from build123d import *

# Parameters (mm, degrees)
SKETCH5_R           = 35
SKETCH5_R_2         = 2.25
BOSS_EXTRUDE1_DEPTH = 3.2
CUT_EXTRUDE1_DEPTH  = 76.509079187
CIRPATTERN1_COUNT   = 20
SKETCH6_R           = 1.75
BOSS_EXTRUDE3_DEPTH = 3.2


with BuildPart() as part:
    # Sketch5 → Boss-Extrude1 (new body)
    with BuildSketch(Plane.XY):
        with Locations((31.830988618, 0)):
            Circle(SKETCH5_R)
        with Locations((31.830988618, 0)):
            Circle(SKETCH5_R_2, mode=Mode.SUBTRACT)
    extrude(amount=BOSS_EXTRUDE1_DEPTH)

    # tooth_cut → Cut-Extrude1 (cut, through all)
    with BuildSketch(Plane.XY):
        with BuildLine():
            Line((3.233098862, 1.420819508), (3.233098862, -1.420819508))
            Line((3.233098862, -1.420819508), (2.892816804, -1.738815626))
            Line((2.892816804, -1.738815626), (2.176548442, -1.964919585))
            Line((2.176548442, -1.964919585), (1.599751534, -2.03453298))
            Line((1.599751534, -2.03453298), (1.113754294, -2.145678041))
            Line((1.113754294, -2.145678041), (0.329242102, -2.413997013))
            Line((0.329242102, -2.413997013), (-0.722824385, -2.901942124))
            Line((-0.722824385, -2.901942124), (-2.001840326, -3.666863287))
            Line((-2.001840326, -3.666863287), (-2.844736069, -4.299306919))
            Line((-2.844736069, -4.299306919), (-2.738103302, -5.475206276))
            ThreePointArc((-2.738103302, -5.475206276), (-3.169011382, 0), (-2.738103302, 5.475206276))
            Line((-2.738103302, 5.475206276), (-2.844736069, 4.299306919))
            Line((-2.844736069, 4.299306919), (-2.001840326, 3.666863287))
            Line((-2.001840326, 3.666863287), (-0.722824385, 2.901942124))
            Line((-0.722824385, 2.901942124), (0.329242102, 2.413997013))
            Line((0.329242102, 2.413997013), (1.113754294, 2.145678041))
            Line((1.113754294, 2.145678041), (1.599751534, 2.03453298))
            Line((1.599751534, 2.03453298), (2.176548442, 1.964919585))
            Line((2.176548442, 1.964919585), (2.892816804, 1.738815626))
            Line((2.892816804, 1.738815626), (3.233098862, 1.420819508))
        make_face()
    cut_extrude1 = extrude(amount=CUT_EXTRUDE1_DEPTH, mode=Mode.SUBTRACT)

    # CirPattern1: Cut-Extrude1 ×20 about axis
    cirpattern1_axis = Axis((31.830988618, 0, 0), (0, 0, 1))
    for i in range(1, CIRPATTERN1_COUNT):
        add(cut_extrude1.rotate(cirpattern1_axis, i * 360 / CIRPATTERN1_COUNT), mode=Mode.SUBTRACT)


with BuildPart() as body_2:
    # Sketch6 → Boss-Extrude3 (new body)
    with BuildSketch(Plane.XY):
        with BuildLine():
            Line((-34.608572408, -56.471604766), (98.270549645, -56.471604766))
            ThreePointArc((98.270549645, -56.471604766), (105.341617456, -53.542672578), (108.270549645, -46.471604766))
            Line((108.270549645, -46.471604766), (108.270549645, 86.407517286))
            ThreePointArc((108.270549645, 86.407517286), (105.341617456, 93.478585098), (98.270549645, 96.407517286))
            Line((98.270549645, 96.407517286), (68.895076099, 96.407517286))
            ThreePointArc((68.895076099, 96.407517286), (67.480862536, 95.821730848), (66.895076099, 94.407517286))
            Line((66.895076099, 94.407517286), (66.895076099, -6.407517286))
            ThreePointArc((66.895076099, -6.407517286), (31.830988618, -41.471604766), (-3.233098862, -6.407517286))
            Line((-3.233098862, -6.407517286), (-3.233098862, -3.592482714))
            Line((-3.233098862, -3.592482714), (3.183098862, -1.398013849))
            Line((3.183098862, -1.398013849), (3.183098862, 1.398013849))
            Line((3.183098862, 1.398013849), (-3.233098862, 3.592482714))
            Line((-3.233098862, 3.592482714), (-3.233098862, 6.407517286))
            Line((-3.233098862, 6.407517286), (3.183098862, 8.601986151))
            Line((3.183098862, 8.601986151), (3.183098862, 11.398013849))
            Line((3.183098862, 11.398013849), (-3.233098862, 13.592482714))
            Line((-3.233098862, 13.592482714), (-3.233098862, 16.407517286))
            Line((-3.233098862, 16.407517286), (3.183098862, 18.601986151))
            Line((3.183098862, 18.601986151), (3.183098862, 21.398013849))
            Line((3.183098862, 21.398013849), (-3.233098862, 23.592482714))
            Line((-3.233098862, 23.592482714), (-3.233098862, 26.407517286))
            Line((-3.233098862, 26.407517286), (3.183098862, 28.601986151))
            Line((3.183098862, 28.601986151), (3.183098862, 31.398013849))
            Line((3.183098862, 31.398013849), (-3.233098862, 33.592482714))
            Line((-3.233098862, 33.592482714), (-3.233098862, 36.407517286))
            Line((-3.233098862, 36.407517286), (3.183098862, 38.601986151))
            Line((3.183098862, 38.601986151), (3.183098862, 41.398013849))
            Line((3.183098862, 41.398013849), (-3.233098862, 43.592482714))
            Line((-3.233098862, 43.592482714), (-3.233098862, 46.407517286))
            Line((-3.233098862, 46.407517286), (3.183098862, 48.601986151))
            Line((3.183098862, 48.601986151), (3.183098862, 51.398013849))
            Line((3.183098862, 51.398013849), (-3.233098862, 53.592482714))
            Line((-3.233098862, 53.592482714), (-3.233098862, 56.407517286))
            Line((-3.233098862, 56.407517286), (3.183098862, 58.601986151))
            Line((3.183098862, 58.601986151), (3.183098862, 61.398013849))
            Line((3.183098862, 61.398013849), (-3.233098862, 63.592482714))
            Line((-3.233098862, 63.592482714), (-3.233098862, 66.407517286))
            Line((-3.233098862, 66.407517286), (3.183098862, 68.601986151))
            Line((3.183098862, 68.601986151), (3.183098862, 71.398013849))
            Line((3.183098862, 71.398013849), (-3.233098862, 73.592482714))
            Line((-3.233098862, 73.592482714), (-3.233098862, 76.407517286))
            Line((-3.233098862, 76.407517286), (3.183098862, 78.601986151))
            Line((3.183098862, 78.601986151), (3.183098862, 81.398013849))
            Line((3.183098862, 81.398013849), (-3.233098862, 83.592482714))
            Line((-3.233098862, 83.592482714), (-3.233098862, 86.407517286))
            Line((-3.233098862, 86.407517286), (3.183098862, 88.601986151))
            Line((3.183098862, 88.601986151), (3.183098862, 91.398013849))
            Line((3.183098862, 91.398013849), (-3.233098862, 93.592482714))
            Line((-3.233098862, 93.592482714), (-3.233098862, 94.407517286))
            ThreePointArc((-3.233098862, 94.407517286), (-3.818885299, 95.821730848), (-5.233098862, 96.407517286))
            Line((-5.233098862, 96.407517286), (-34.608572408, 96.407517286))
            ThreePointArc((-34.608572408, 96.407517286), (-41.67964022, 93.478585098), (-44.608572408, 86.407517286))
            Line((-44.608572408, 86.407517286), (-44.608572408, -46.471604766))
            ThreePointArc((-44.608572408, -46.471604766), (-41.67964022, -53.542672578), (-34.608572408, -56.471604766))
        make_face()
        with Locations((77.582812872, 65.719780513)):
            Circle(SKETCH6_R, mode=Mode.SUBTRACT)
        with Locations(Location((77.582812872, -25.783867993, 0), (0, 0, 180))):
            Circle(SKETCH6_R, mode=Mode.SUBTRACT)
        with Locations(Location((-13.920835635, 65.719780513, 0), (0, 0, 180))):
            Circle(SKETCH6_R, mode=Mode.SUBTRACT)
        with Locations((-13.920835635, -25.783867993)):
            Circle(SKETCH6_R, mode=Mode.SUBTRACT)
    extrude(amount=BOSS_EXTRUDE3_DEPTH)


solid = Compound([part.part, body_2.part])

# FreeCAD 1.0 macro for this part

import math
import FreeCAD as App
import Part
import Sketcher

V = App.Vector
Q = App.Units.Quantity

doc = App.newDocument("Part")
params = doc.addObject("Spreadsheet::Sheet", "Params")
for row, (alias, value) in enumerate([
    ("sketch1_diameter", "70 mm"),
    ("sketch1_diameter2", "4.5 mm"),
    ("pad1_length", "3.2 mm"),
    ("sketch2_radius", "35 mm"),
    ("sketch3_radius", "10 mm"),
    ("sketch3_radius2", "2 mm"),
    ("sketch3_diameter", "3.5 mm"),
    ("pad2_length", "3.2 mm"),
], start=1):
    params.set(f"A{row}", alias)
    params.set(f"B{row}", "=" + value)
    params.setAlias(f"B{row}", alias)

body = doc.addObject("PartDesign::Body", "Body")

sketch1 = body.newObject("Sketcher::SketchObject", "Sketch")
sketch1.AttachmentSupport = (doc.getObject("XY_Plane"), [""])
sketch1.MapMode = "FlatFace"
sketch1.addGeometry(Part.Circle(V(31.8, 0, 0), V(0, 0, 1), 35), False)
sketch1.addGeometry(Part.Circle(V(31.8, 0, 0), V(0, 0, 1), 2.2), False)
sketch1.addConstraint(Sketcher.Constraint("Coincident", 1, 3, 0, 3))
sketch1.addConstraint(Sketcher.Constraint("PointOnObject", 0, 3, -1))
sketch1.addConstraint(Sketcher.Constraint("Diameter", 0, Q("70 mm")))
sketch1.addConstraint(Sketcher.Constraint("Diameter", 1, Q("4.5 mm")))
sketch1.addConstraint(Sketcher.Constraint("DistanceX", -1, 1, 0, 3, Q("31.830989 mm")))
sketch1.setExpression("Constraints[2]", "Params.sketch1_diameter")
sketch1.setExpression("Constraints[3]", "Params.sketch1_diameter2")
pad1 = body.newObject("PartDesign::Pad", "Pad")
pad1.Profile = sketch1
pad1.setExpression("Length", "Params.pad1_length")

sketch2 = body.newObject("Sketcher::SketchObject", "Sketch001")
sketch2.AttachmentSupport = (doc.getObject("XY_Plane"), [""])
sketch2.MapMode = "FlatFace"
sketch2.addGeometry(Part.LineSegment(V(3.23, -1.42, 0), V(3.23, 1.42, 0)), False)
sketch2.addGeometry(Part.LineSegment(V(3.23, 1.42, 0), V(2.89, 1.74, 0)), False)
sketch2.addGeometry(Part.LineSegment(V(2.89, 1.74, 0), V(2.18, 1.96, 0)), False)
sketch2.addGeometry(Part.LineSegment(V(2.18, 1.96, 0), V(1.6, 2.03, 0)), False)
sketch2.addGeometry(Part.LineSegment(V(1.6, 2.03, 0), V(1.11, 2.15, 0)), False)
sketch2.addGeometry(Part.LineSegment(V(1.11, 2.15, 0), V(0.33, 2.41, 0)), False)
sketch2.addGeometry(Part.LineSegment(V(0.33, 2.41, 0), V(-0.72, 2.9, 0)), False)
sketch2.addGeometry(Part.LineSegment(V(-0.72, 2.9, 0), V(-2, 3.67, 0)), False)
sketch2.addGeometry(Part.LineSegment(V(-2, 3.67, 0), V(-2.84, 4.3, 0)), False)
sketch2.addGeometry(Part.LineSegment(V(-2.84, 4.3, 0), V(-2.74, 5.48, 0)), False)
sketch2.addGeometry(Part.ArcOfCircle(Part.Circle(V(31.83, 0, 0), V(0, 0, 1), 35), math.radians(171), math.radians(189)), False)
sketch2.addGeometry(Part.LineSegment(V(-2.74, -5.48, 0), V(-2.84, -4.3, 0)), False)
sketch2.addGeometry(Part.LineSegment(V(-2.84, -4.3, 0), V(-2, -3.67, 0)), False)
sketch2.addGeometry(Part.LineSegment(V(-2, -3.67, 0), V(-0.72, -2.9, 0)), False)
sketch2.addGeometry(Part.LineSegment(V(-0.72, -2.9, 0), V(0.33, -2.41, 0)), False)
sketch2.addGeometry(Part.LineSegment(V(0.33, -2.41, 0), V(1.11, -2.15, 0)), False)
sketch2.addGeometry(Part.LineSegment(V(1.11, -2.15, 0), V(1.6, -2.03, 0)), False)
sketch2.addGeometry(Part.LineSegment(V(1.6, -2.03, 0), V(2.18, -1.96, 0)), False)
sketch2.addGeometry(Part.LineSegment(V(2.18, -1.96, 0), V(2.89, -1.74, 0)), False)
sketch2.addGeometry(Part.LineSegment(V(2.89, -1.74, 0), V(3.23, -1.42, 0)), False)
sketch2.addConstraint(Sketcher.Constraint("Coincident", 0, 2, 1, 1))
sketch2.addConstraint(Sketcher.Constraint("Coincident", 1, 2, 2, 1))
sketch2.addConstraint(Sketcher.Constraint("Coincident", 2, 2, 3, 1))
sketch2.addConstraint(Sketcher.Constraint("Coincident", 3, 2, 4, 1))
sketch2.addConstraint(Sketcher.Constraint("Coincident", 4, 2, 5, 1))
sketch2.addConstraint(Sketcher.Constraint("Coincident", 5, 2, 6, 1))
sketch2.addConstraint(Sketcher.Constraint("Coincident", 6, 2, 7, 1))
sketch2.addConstraint(Sketcher.Constraint("Coincident", 7, 2, 8, 1))
sketch2.addConstraint(Sketcher.Constraint("Coincident", 8, 2, 9, 1))
sketch2.addConstraint(Sketcher.Constraint("Coincident", 9, 2, 10, 1))
sketch2.addConstraint(Sketcher.Constraint("Coincident", 10, 2, 11, 1))
sketch2.addConstraint(Sketcher.Constraint("Coincident", 11, 2, 12, 1))
sketch2.addConstraint(Sketcher.Constraint("Coincident", 12, 2, 13, 1))
sketch2.addConstraint(Sketcher.Constraint("Coincident", 13, 2, 14, 1))
sketch2.addConstraint(Sketcher.Constraint("Coincident", 14, 2, 15, 1))
sketch2.addConstraint(Sketcher.Constraint("Coincident", 15, 2, 16, 1))
sketch2.addConstraint(Sketcher.Constraint("Coincident", 16, 2, 17, 1))
sketch2.addConstraint(Sketcher.Constraint("Coincident", 17, 2, 18, 1))
sketch2.addConstraint(Sketcher.Constraint("Coincident", 18, 2, 19, 1))
sketch2.addConstraint(Sketcher.Constraint("Coincident", 19, 2, 0, 1))
sketch2.addConstraint(Sketcher.Constraint("Vertical", 0))
sketch2.addConstraint(Sketcher.Constraint("Symmetric", 9, 2, 10, 2, -1))
sketch2.addConstraint(Sketcher.Constraint("Symmetric", 8, 2, 11, 2, -1))
sketch2.addConstraint(Sketcher.Constraint("Symmetric", 7, 2, 12, 2, -1))
sketch2.addConstraint(Sketcher.Constraint("Symmetric", 6, 2, 13, 2, -1))
sketch2.addConstraint(Sketcher.Constraint("Symmetric", 5, 2, 14, 2, -1))
sketch2.addConstraint(Sketcher.Constraint("Symmetric", 4, 2, 15, 2, -1))
sketch2.addConstraint(Sketcher.Constraint("Symmetric", 3, 2, 16, 2, -1))
sketch2.addConstraint(Sketcher.Constraint("Symmetric", 2, 2, 17, 2, -1))
sketch2.addConstraint(Sketcher.Constraint("Symmetric", 1, 2, 18, 2, -1))
sketch2.addConstraint(Sketcher.Constraint("Equal", 1, 19))
sketch2.addConstraint(Sketcher.Constraint("Radius", 10, Q("35 mm")))
sketch2.addConstraint(Sketcher.Constraint("DistanceY", 0, 1, 0, 2, Q("2.841639 mm")))
sketch2.addConstraint(Sketcher.Constraint("DistanceX", -1, 1, 0, 2, Q("3.233099 mm")))
sketch2.addConstraint(Sketcher.Constraint("DistanceY", 0, 2, 2, 2, Q("0.5441 mm")))
sketch2.addConstraint(Sketcher.Constraint("DistanceY", 8, 2, 9, 2, Q("1.175899 mm")))
sketch2.addConstraint(Sketcher.Constraint("Distance", 1, Q("0.46574 mm")))
sketch2.addConstraint(Sketcher.Constraint("Distance", 2, Q("0.751108 mm")))
sketch2.addConstraint(Sketcher.Constraint("Distance", 5, Q("0.829129 mm")))
sketch2.addConstraint(Sketcher.Constraint("DistanceX", -1, 1, 10, 3, Q("31.830989 mm")))
sketch2.addConstraint(Sketcher.Constraint("DistanceX", -1, 1, 2, 2, Q("2.176548 mm")))
sketch2.addConstraint(Sketcher.Constraint("DistanceX", -1, 1, 3, 2, Q("1.599752 mm")))
sketch2.addConstraint(Sketcher.Constraint("DistanceY", -1, 1, 4, 2, Q("2.145678 mm")))
sketch2.addConstraint(Sketcher.Constraint("DistanceX", 7, 2, -1, 1, Q("2.00184 mm")))
sketch2.addConstraint(Sketcher.Constraint("DistanceY", 4, 2, 5, 2, Q("0.268319 mm")))
sketch2.addConstraint(Sketcher.Constraint("DistanceX", 5, 2, 3, 2, Q("1.270509 mm")))
sketch2.addConstraint(Sketcher.Constraint("DistanceX", 6, 2, 4, 2, Q("1.836579 mm")))
sketch2.addConstraint(Sketcher.Constraint("DistanceY", 3, 2, 6, 2, Q("0.867409 mm")))
sketch2.addConstraint(Sketcher.Constraint("DistanceY", 6, 2, 7, 2, Q("0.764921 mm")))
sketch2.addConstraint(Sketcher.Constraint("DistanceX", 8, 2, 6, 2, Q("2.121912 mm")))
sketch2.addConstraint(Sketcher.Constraint("DistanceY", 5, 2, 8, 2, Q("1.88531 mm")))
sketch2.addConstraint(Sketcher.Constraint("DistanceY", 10, 2, 6, 2, Q("8.377148 mm")))
sketch2.setExpression("Constraints[31]", "Params.sketch2_radius")
pocket1 = body.newObject("PartDesign::Pocket", "Pocket")
pocket1.Profile = sketch2
pocket1.Type = "ThroughAll"
pocket1.Reversed = True
doc.recompute()

datumline = body.newObject("PartDesign::Line", "DatumLine")
datumline.Placement = App.Placement(V(31.830989, 0, 0), App.Rotation(V(0, 0, 1), V(0, 0, 1)))
polarpattern = body.newObject("PartDesign::PolarPattern", "PolarPattern")
polarpattern.Originals = [pocket1]
polarpattern.Axis = (datumline, [""])
polarpattern.Angle = 360
polarpattern.Occurrences = 20
body.Tip = polarpattern
body2 = doc.addObject("PartDesign::Body", "Body001")

sketch3 = body2.newObject("Sketcher::SketchObject", "Sketch002")
sketch3.AttachmentSupport = (doc.getObject("XY_Plane001"), [""])
sketch3.MapMode = "FlatFace"
sketch3.addGeometry(Part.LineSegment(V(-34.6, -56.5, 0), V(98.3, -56.5, 0)), False)
sketch3.addGeometry(Part.ArcOfCircle(Part.Circle(V(98.3, -46.5, 0), V(0, 0, 1), 10), math.radians(-90), math.radians(0)), False)
sketch3.addGeometry(Part.LineSegment(V(108.3, -46.5, 0), V(108.3, 86.4, 0)), False)
sketch3.addGeometry(Part.ArcOfCircle(Part.Circle(V(98.3, 86.4, 0), V(0, 0, 1), 10), math.radians(0), math.radians(90)), False)
sketch3.addGeometry(Part.LineSegment(V(98.3, 96.4, 0), V(68.9, 96.4, 0)), False)
sketch3.addGeometry(Part.ArcOfCircle(Part.Circle(V(68.9, 94.4, 0), V(0, 0, 1), 2), math.radians(90), math.radians(180)), False)
sketch3.addGeometry(Part.LineSegment(V(66.9, 94.4, 0), V(66.9, -6.4, 0)), False)
sketch3.addGeometry(Part.ArcOfCircle(Part.Circle(V(31.8, -6.4, 0), V(0, 0, 1), 35.1), math.radians(180), math.radians(360)), False)
sketch3.addGeometry(Part.LineSegment(V(-3.2, -6.4, 0), V(-3.2, -3.6, 0)), False)
sketch3.addGeometry(Part.LineSegment(V(-3.2, -3.6, 0), V(3.2, -1.4, 0)), False)
sketch3.addGeometry(Part.LineSegment(V(3.2, -1.4, 0), V(3.2, 1.4, 0)), False)
sketch3.addGeometry(Part.LineSegment(V(3.2, 1.4, 0), V(-3.2, 3.6, 0)), False)
sketch3.addGeometry(Part.LineSegment(V(-3.2, 3.6, 0), V(-3.2, 6.4, 0)), False)
sketch3.addGeometry(Part.LineSegment(V(-3.2, 6.4, 0), V(3.2, 8.6, 0)), False)
sketch3.addGeometry(Part.LineSegment(V(3.2, 8.6, 0), V(3.2, 11.4, 0)), False)
sketch3.addGeometry(Part.LineSegment(V(3.2, 11.4, 0), V(-3.2, 13.6, 0)), False)
sketch3.addGeometry(Part.LineSegment(V(-3.2, 13.6, 0), V(-3.2, 16.4, 0)), False)
sketch3.addGeometry(Part.LineSegment(V(-3.2, 16.4, 0), V(3.2, 18.6, 0)), False)
sketch3.addGeometry(Part.LineSegment(V(3.2, 18.6, 0), V(3.2, 21.4, 0)), False)
sketch3.addGeometry(Part.LineSegment(V(3.2, 21.4, 0), V(-3.2, 23.6, 0)), False)
sketch3.addGeometry(Part.LineSegment(V(-3.2, 23.6, 0), V(-3.2, 26.4, 0)), False)
sketch3.addGeometry(Part.LineSegment(V(-3.2, 26.4, 0), V(3.2, 28.6, 0)), False)
sketch3.addGeometry(Part.LineSegment(V(3.2, 28.6, 0), V(3.2, 31.4, 0)), False)
sketch3.addGeometry(Part.LineSegment(V(3.2, 31.4, 0), V(-3.2, 33.6, 0)), False)
sketch3.addGeometry(Part.LineSegment(V(-3.2, 33.6, 0), V(-3.2, 36.4, 0)), False)
sketch3.addGeometry(Part.LineSegment(V(-3.2, 36.4, 0), V(3.2, 38.6, 0)), False)
sketch3.addGeometry(Part.LineSegment(V(3.2, 38.6, 0), V(3.2, 41.4, 0)), False)
sketch3.addGeometry(Part.LineSegment(V(3.2, 41.4, 0), V(-3.2, 43.6, 0)), False)
sketch3.addGeometry(Part.LineSegment(V(-3.2, 43.6, 0), V(-3.2, 46.4, 0)), False)
sketch3.addGeometry(Part.LineSegment(V(-3.2, 46.4, 0), V(3.2, 48.6, 0)), False)
sketch3.addGeometry(Part.LineSegment(V(3.2, 48.6, 0), V(3.2, 51.4, 0)), False)
sketch3.addGeometry(Part.LineSegment(V(3.2, 51.4, 0), V(-3.2, 53.6, 0)), False)
sketch3.addGeometry(Part.LineSegment(V(-3.2, 53.6, 0), V(-3.2, 56.4, 0)), False)
sketch3.addGeometry(Part.LineSegment(V(-3.2, 56.4, 0), V(3.2, 58.6, 0)), False)
sketch3.addGeometry(Part.LineSegment(V(3.2, 58.6, 0), V(3.2, 61.4, 0)), False)
sketch3.addGeometry(Part.LineSegment(V(3.2, 61.4, 0), V(-3.2, 63.6, 0)), False)
sketch3.addGeometry(Part.LineSegment(V(-3.2, 63.6, 0), V(-3.2, 66.4, 0)), False)
sketch3.addGeometry(Part.LineSegment(V(-3.2, 66.4, 0), V(3.2, 68.6, 0)), False)
sketch3.addGeometry(Part.LineSegment(V(3.2, 68.6, 0), V(3.2, 71.4, 0)), False)
sketch3.addGeometry(Part.LineSegment(V(3.2, 71.4, 0), V(-3.2, 73.6, 0)), False)
sketch3.addGeometry(Part.LineSegment(V(-3.2, 73.6, 0), V(-3.2, 76.4, 0)), False)
sketch3.addGeometry(Part.LineSegment(V(-3.2, 76.4, 0), V(3.2, 78.6, 0)), False)
sketch3.addGeometry(Part.LineSegment(V(3.2, 78.6, 0), V(3.2, 81.4, 0)), False)
sketch3.addGeometry(Part.LineSegment(V(3.2, 81.4, 0), V(-3.2, 83.6, 0)), False)
sketch3.addGeometry(Part.LineSegment(V(-3.2, 83.6, 0), V(-3.2, 86.4, 0)), False)
sketch3.addGeometry(Part.LineSegment(V(-3.2, 86.4, 0), V(3.2, 88.6, 0)), False)
sketch3.addGeometry(Part.LineSegment(V(3.2, 88.6, 0), V(3.2, 91.4, 0)), False)
sketch3.addGeometry(Part.LineSegment(V(3.2, 91.4, 0), V(-3.2, 93.6, 0)), False)
sketch3.addGeometry(Part.LineSegment(V(-3.2, 93.6, 0), V(-3.2, 94.4, 0)), False)
sketch3.addGeometry(Part.ArcOfCircle(Part.Circle(V(-5.2, 94.4, 0), V(0, 0, 1), 2), math.radians(0), math.radians(90)), False)
sketch3.addGeometry(Part.LineSegment(V(-5.2, 96.4, 0), V(-34.6, 96.4, 0)), False)
sketch3.addGeometry(Part.ArcOfCircle(Part.Circle(V(-34.6, 86.4, 0), V(0, 0, 1), 10), math.radians(90), math.radians(180)), False)
sketch3.addGeometry(Part.LineSegment(V(-44.6, 86.4, 0), V(-44.6, -46.5, 0)), False)
sketch3.addGeometry(Part.ArcOfCircle(Part.Circle(V(-34.6, -46.5, 0), V(0, 0, 1), 10), math.radians(180), math.radians(270)), False)
sketch3.addGeometry(Part.Circle(V(-13.9, -25.8, 0), V(0, 0, 1), 1.8), False)
sketch3.addGeometry(Part.Circle(V(77.6, -25.8, 0), V(0, 0, 1), 1.8), False)
sketch3.addGeometry(Part.Circle(V(-13.9, 65.7, 0), V(0, 0, 1), 1.8), False)
sketch3.addGeometry(Part.Circle(V(77.6, 65.7, 0), V(0, 0, 1), 1.8), False)
sketch3.addConstraint(Sketcher.Constraint("Tangent", 0, 2, 1, 1))
sketch3.addConstraint(Sketcher.Constraint("Tangent", 1, 2, 2, 1))
sketch3.addConstraint(Sketcher.Constraint("Tangent", 2, 2, 3, 1))
sketch3.addConstraint(Sketcher.Constraint("Tangent", 3, 2, 4, 1))
sketch3.addConstraint(Sketcher.Constraint("Tangent", 4, 2, 5, 1))
sketch3.addConstraint(Sketcher.Constraint("Tangent", 5, 2, 6, 1))
sketch3.addConstraint(Sketcher.Constraint("Tangent", 6, 2, 7, 2))
sketch3.addConstraint(Sketcher.Constraint("Tangent", 7, 1, 8, 1))
sketch3.addConstraint(Sketcher.Constraint("Coincident", 8, 2, 9, 1))
sketch3.addConstraint(Sketcher.Constraint("Coincident", 9, 2, 10, 1))
sketch3.addConstraint(Sketcher.Constraint("Coincident", 10, 2, 11, 1))
sketch3.addConstraint(Sketcher.Constraint("Coincident", 11, 2, 12, 1))
sketch3.addConstraint(Sketcher.Constraint("Coincident", 12, 2, 13, 1))
sketch3.addConstraint(Sketcher.Constraint("Coincident", 13, 2, 14, 1))
sketch3.addConstraint(Sketcher.Constraint("Coincident", 14, 2, 15, 1))
sketch3.addConstraint(Sketcher.Constraint("Coincident", 15, 2, 16, 1))
sketch3.addConstraint(Sketcher.Constraint("Coincident", 16, 2, 17, 1))
sketch3.addConstraint(Sketcher.Constraint("Coincident", 17, 2, 18, 1))
sketch3.addConstraint(Sketcher.Constraint("Coincident", 18, 2, 19, 1))
sketch3.addConstraint(Sketcher.Constraint("Coincident", 19, 2, 20, 1))
sketch3.addConstraint(Sketcher.Constraint("Coincident", 20, 2, 21, 1))
sketch3.addConstraint(Sketcher.Constraint("Coincident", 21, 2, 22, 1))
sketch3.addConstraint(Sketcher.Constraint("Coincident", 22, 2, 23, 1))
sketch3.addConstraint(Sketcher.Constraint("Coincident", 23, 2, 24, 1))
sketch3.addConstraint(Sketcher.Constraint("Coincident", 24, 2, 25, 1))
sketch3.addConstraint(Sketcher.Constraint("Coincident", 25, 2, 26, 1))
sketch3.addConstraint(Sketcher.Constraint("Coincident", 26, 2, 27, 1))
sketch3.addConstraint(Sketcher.Constraint("Coincident", 27, 2, 28, 1))
sketch3.addConstraint(Sketcher.Constraint("Coincident", 28, 2, 29, 1))
sketch3.addConstraint(Sketcher.Constraint("Coincident", 29, 2, 30, 1))
sketch3.addConstraint(Sketcher.Constraint("Coincident", 30, 2, 31, 1))
sketch3.addConstraint(Sketcher.Constraint("Coincident", 31, 2, 32, 1))
sketch3.addConstraint(Sketcher.Constraint("Coincident", 32, 2, 33, 1))
sketch3.addConstraint(Sketcher.Constraint("Coincident", 33, 2, 34, 1))
sketch3.addConstraint(Sketcher.Constraint("Coincident", 34, 2, 35, 1))
sketch3.addConstraint(Sketcher.Constraint("Coincident", 35, 2, 36, 1))
sketch3.addConstraint(Sketcher.Constraint("Coincident", 36, 2, 37, 1))
sketch3.addConstraint(Sketcher.Constraint("Coincident", 37, 2, 38, 1))
sketch3.addConstraint(Sketcher.Constraint("Coincident", 38, 2, 39, 1))
sketch3.addConstraint(Sketcher.Constraint("Coincident", 39, 2, 40, 1))
sketch3.addConstraint(Sketcher.Constraint("Coincident", 40, 2, 41, 1))
sketch3.addConstraint(Sketcher.Constraint("Coincident", 41, 2, 42, 1))
sketch3.addConstraint(Sketcher.Constraint("Coincident", 42, 2, 43, 1))
sketch3.addConstraint(Sketcher.Constraint("Coincident", 43, 2, 44, 1))
sketch3.addConstraint(Sketcher.Constraint("Coincident", 44, 2, 45, 1))
sketch3.addConstraint(Sketcher.Constraint("Coincident", 45, 2, 46, 1))
sketch3.addConstraint(Sketcher.Constraint("Coincident", 46, 2, 47, 1))
sketch3.addConstraint(Sketcher.Constraint("Coincident", 47, 2, 48, 1))
sketch3.addConstraint(Sketcher.Constraint("Tangent", 48, 2, 49, 1))
sketch3.addConstraint(Sketcher.Constraint("Tangent", 49, 2, 50, 1))
sketch3.addConstraint(Sketcher.Constraint("Tangent", 50, 2, 51, 1))
sketch3.addConstraint(Sketcher.Constraint("Tangent", 51, 2, 52, 1))
sketch3.addConstraint(Sketcher.Constraint("Tangent", 52, 2, 53, 1))
sketch3.addConstraint(Sketcher.Constraint("Tangent", 53, 2, 0, 1))
sketch3.addConstraint(Sketcher.Constraint("Horizontal", 0))
sketch3.addConstraint(Sketcher.Constraint("Vertical", 2))
sketch3.addConstraint(Sketcher.Constraint("Horizontal", 4))
sketch3.addConstraint(Sketcher.Constraint("Vertical", 6))
sketch3.addConstraint(Sketcher.Constraint("Vertical", 8))
sketch3.addConstraint(Sketcher.Constraint("Vertical", 10))
sketch3.addConstraint(Sketcher.Constraint("Vertical", 12))
sketch3.addConstraint(Sketcher.Constraint("Vertical", 14))
sketch3.addConstraint(Sketcher.Constraint("Vertical", 16))
sketch3.addConstraint(Sketcher.Constraint("Vertical", 18))
sketch3.addConstraint(Sketcher.Constraint("Vertical", 20))
sketch3.addConstraint(Sketcher.Constraint("Vertical", 22))
sketch3.addConstraint(Sketcher.Constraint("Vertical", 24))
sketch3.addConstraint(Sketcher.Constraint("Vertical", 26))
sketch3.addConstraint(Sketcher.Constraint("Vertical", 28))
sketch3.addConstraint(Sketcher.Constraint("Vertical", 30))
sketch3.addConstraint(Sketcher.Constraint("Vertical", 32))
sketch3.addConstraint(Sketcher.Constraint("Vertical", 34))
sketch3.addConstraint(Sketcher.Constraint("Vertical", 36))
sketch3.addConstraint(Sketcher.Constraint("Vertical", 38))
sketch3.addConstraint(Sketcher.Constraint("Vertical", 40))
sketch3.addConstraint(Sketcher.Constraint("Vertical", 42))
sketch3.addConstraint(Sketcher.Constraint("Vertical", 44))
sketch3.addConstraint(Sketcher.Constraint("Vertical", 46))
sketch3.addConstraint(Sketcher.Constraint("Vertical", 48))
sketch3.addConstraint(Sketcher.Constraint("Horizontal", 50))
sketch3.addConstraint(Sketcher.Constraint("Vertical", 52))
sketch3.addConstraint(Sketcher.Constraint("Equal", 1, 3))
sketch3.addConstraint(Sketcher.Constraint("Equal", 5, 49))
sketch3.addConstraint(Sketcher.Constraint("Equal", 3, 51))
sketch3.addConstraint(Sketcher.Constraint("Equal", 51, 53))
sketch3.addConstraint(Sketcher.Constraint("Equal", 54, 55))
sketch3.addConstraint(Sketcher.Constraint("Equal", 55, 56))
sketch3.addConstraint(Sketcher.Constraint("Equal", 56, 57))
sketch3.addConstraint(Sketcher.Constraint("Symmetric", 8, 2, 11, 2, -1))
sketch3.addConstraint(Sketcher.Constraint("Parallel", 9, 13))
sketch3.addConstraint(Sketcher.Constraint("Parallel", 11, 15))
sketch3.addConstraint(Sketcher.Constraint("Parallel", 13, 17))
sketch3.addConstraint(Sketcher.Constraint("Parallel", 15, 19))
sketch3.addConstraint(Sketcher.Constraint("Parallel", 17, 21))
sketch3.addConstraint(Sketcher.Constraint("Parallel", 19, 23))
sketch3.addConstraint(Sketcher.Constraint("Parallel", 21, 25))
sketch3.addConstraint(Sketcher.Constraint("Parallel", 23, 27))
sketch3.addConstraint(Sketcher.Constraint("Parallel", 25, 29))
sketch3.addConstraint(Sketcher.Constraint("Parallel", 27, 31))
sketch3.addConstraint(Sketcher.Constraint("Parallel", 29, 33))
sketch3.addConstraint(Sketcher.Constraint("Parallel", 31, 35))
sketch3.addConstraint(Sketcher.Constraint("Parallel", 33, 37))
sketch3.addConstraint(Sketcher.Constraint("Parallel", 35, 39))
sketch3.addConstraint(Sketcher.Constraint("Parallel", 37, 41))
sketch3.addConstraint(Sketcher.Constraint("Parallel", 39, 43))
sketch3.addConstraint(Sketcher.Constraint("Parallel", 41, 45))
sketch3.addConstraint(Sketcher.Constraint("Parallel", 43, 47))
sketch3.addConstraint(Sketcher.Constraint("Horizontal", 5, 3, 49, 3))
sketch3.addConstraint(Sketcher.Constraint("Horizontal", 54, 3, 55, 3))
sketch3.addConstraint(Sketcher.Constraint("Horizontal", 56, 3, 57, 3))
sketch3.addConstraint(Sketcher.Constraint("Horizontal", 2, 2, 44, 2))
sketch3.addConstraint(Sketcher.Constraint("Vertical", 54, 3, 56, 3))
sketch3.addConstraint(Sketcher.Constraint("Vertical", 55, 3, 57, 3))
sketch3.addConstraint(Sketcher.Constraint("Vertical", 10, 2, 13, 2))
sketch3.addConstraint(Sketcher.Constraint("Vertical", 12, 2, 15, 2))
sketch3.addConstraint(Sketcher.Constraint("Vertical", 14, 2, 17, 2))
sketch3.addConstraint(Sketcher.Constraint("Vertical", 16, 2, 19, 2))
sketch3.addConstraint(Sketcher.Constraint("Vertical", 18, 2, 21, 2))
sketch3.addConstraint(Sketcher.Constraint("Vertical", 20, 2, 23, 2))
sketch3.addConstraint(Sketcher.Constraint("Vertical", 22, 2, 25, 2))
sketch3.addConstraint(Sketcher.Constraint("Vertical", 24, 2, 27, 2))
sketch3.addConstraint(Sketcher.Constraint("Vertical", 26, 2, 29, 2))
sketch3.addConstraint(Sketcher.Constraint("Vertical", 28, 2, 31, 2))
sketch3.addConstraint(Sketcher.Constraint("Vertical", 30, 2, 33, 2))
sketch3.addConstraint(Sketcher.Constraint("Vertical", 32, 2, 35, 2))
sketch3.addConstraint(Sketcher.Constraint("Vertical", 34, 2, 37, 2))
sketch3.addConstraint(Sketcher.Constraint("Vertical", 36, 2, 39, 2))
sketch3.addConstraint(Sketcher.Constraint("Vertical", 38, 2, 41, 2))
sketch3.addConstraint(Sketcher.Constraint("Vertical", 40, 2, 43, 2))
sketch3.addConstraint(Sketcher.Constraint("Vertical", 42, 2, 45, 2))
sketch3.addConstraint(Sketcher.Constraint("Vertical", 44, 2, 47, 2))
sketch3.addConstraint(Sketcher.Constraint("Equal", 4, 50))
sketch3.addConstraint(Sketcher.Constraint("Equal", 0, 2))
sketch3.addConstraint(Sketcher.Constraint("Equal", 8, 12))
sketch3.addConstraint(Sketcher.Constraint("Equal", 10, 14))
sketch3.addConstraint(Sketcher.Constraint("Equal", 12, 16))
sketch3.addConstraint(Sketcher.Constraint("Equal", 14, 18))
sketch3.addConstraint(Sketcher.Constraint("Equal", 16, 20))
sketch3.addConstraint(Sketcher.Constraint("Equal", 18, 22))
sketch3.addConstraint(Sketcher.Constraint("Equal", 20, 24))
sketch3.addConstraint(Sketcher.Constraint("Equal", 22, 26))
sketch3.addConstraint(Sketcher.Constraint("Equal", 24, 28))
sketch3.addConstraint(Sketcher.Constraint("Equal", 26, 30))
sketch3.addConstraint(Sketcher.Constraint("Equal", 28, 32))
sketch3.addConstraint(Sketcher.Constraint("Equal", 30, 34))
sketch3.addConstraint(Sketcher.Constraint("Equal", 32, 36))
sketch3.addConstraint(Sketcher.Constraint("Equal", 34, 38))
sketch3.addConstraint(Sketcher.Constraint("Equal", 36, 40))
sketch3.addConstraint(Sketcher.Constraint("Equal", 38, 42))
sketch3.addConstraint(Sketcher.Constraint("Equal", 40, 44))
sketch3.addConstraint(Sketcher.Constraint("Equal", 42, 46))
sketch3.addConstraint(Sketcher.Constraint("Equal", 9, 11))
sketch3.addConstraint(Sketcher.Constraint("Radius", 1, Q("10 mm")))
sketch3.addConstraint(Sketcher.Constraint("Radius", 5, Q("2 mm")))
sketch3.addConstraint(Sketcher.Constraint("Diameter", 54, Q("3.5 mm")))
sketch3.addConstraint(Sketcher.Constraint("Radius", 7, Q("35.064087 mm")))
sketch3.addConstraint(Sketcher.Constraint("DistanceX", 49, 3, -1, 1, Q("5.233099 mm")))
sketch3.addConstraint(Sketcher.Constraint("DistanceX", -1, 1, 9, 2, Q("3.183099 mm")))
sketch3.addConstraint(Sketcher.Constraint("DistanceX", 0, 1, 0, 2, Q("132.879122 mm")))
sketch3.addConstraint(Sketcher.Constraint("DistanceY", 6, 2, 6, 1, Q("100.815035 mm")))
sketch3.addConstraint(Sketcher.Constraint("DistanceY", 8, 1, 8, 2, Q("2.815035 mm")))
sketch3.addConstraint(Sketcher.Constraint("DistanceY", 10, 1, 10, 2, Q("2.796028 mm")))
sketch3.addConstraint(Sketcher.Constraint("DistanceY", -1, 1, 56, 3, Q("65.719781 mm")))
sketch3.addConstraint(Sketcher.Constraint("DistanceX", 54, 3, -1, 1, Q("13.920836 mm")))
sketch3.addConstraint(Sketcher.Constraint("DistanceY", 54, 3, -1, 1, Q("25.783868 mm")))
sketch3.addConstraint(Sketcher.Constraint("DistanceX", -1, 1, 55, 3, Q("77.582813 mm")))
sketch3.setExpression("Constraints[152]", "Params.sketch3_radius")
sketch3.setExpression("Constraints[153]", "Params.sketch3_radius2")
sketch3.setExpression("Constraints[154]", "Params.sketch3_diameter")
pad2 = body2.newObject("PartDesign::Pad", "Pad001")
pad2.Profile = sketch3
pad2.setExpression("Length", "Params.pad2_length")

doc.recompute()
